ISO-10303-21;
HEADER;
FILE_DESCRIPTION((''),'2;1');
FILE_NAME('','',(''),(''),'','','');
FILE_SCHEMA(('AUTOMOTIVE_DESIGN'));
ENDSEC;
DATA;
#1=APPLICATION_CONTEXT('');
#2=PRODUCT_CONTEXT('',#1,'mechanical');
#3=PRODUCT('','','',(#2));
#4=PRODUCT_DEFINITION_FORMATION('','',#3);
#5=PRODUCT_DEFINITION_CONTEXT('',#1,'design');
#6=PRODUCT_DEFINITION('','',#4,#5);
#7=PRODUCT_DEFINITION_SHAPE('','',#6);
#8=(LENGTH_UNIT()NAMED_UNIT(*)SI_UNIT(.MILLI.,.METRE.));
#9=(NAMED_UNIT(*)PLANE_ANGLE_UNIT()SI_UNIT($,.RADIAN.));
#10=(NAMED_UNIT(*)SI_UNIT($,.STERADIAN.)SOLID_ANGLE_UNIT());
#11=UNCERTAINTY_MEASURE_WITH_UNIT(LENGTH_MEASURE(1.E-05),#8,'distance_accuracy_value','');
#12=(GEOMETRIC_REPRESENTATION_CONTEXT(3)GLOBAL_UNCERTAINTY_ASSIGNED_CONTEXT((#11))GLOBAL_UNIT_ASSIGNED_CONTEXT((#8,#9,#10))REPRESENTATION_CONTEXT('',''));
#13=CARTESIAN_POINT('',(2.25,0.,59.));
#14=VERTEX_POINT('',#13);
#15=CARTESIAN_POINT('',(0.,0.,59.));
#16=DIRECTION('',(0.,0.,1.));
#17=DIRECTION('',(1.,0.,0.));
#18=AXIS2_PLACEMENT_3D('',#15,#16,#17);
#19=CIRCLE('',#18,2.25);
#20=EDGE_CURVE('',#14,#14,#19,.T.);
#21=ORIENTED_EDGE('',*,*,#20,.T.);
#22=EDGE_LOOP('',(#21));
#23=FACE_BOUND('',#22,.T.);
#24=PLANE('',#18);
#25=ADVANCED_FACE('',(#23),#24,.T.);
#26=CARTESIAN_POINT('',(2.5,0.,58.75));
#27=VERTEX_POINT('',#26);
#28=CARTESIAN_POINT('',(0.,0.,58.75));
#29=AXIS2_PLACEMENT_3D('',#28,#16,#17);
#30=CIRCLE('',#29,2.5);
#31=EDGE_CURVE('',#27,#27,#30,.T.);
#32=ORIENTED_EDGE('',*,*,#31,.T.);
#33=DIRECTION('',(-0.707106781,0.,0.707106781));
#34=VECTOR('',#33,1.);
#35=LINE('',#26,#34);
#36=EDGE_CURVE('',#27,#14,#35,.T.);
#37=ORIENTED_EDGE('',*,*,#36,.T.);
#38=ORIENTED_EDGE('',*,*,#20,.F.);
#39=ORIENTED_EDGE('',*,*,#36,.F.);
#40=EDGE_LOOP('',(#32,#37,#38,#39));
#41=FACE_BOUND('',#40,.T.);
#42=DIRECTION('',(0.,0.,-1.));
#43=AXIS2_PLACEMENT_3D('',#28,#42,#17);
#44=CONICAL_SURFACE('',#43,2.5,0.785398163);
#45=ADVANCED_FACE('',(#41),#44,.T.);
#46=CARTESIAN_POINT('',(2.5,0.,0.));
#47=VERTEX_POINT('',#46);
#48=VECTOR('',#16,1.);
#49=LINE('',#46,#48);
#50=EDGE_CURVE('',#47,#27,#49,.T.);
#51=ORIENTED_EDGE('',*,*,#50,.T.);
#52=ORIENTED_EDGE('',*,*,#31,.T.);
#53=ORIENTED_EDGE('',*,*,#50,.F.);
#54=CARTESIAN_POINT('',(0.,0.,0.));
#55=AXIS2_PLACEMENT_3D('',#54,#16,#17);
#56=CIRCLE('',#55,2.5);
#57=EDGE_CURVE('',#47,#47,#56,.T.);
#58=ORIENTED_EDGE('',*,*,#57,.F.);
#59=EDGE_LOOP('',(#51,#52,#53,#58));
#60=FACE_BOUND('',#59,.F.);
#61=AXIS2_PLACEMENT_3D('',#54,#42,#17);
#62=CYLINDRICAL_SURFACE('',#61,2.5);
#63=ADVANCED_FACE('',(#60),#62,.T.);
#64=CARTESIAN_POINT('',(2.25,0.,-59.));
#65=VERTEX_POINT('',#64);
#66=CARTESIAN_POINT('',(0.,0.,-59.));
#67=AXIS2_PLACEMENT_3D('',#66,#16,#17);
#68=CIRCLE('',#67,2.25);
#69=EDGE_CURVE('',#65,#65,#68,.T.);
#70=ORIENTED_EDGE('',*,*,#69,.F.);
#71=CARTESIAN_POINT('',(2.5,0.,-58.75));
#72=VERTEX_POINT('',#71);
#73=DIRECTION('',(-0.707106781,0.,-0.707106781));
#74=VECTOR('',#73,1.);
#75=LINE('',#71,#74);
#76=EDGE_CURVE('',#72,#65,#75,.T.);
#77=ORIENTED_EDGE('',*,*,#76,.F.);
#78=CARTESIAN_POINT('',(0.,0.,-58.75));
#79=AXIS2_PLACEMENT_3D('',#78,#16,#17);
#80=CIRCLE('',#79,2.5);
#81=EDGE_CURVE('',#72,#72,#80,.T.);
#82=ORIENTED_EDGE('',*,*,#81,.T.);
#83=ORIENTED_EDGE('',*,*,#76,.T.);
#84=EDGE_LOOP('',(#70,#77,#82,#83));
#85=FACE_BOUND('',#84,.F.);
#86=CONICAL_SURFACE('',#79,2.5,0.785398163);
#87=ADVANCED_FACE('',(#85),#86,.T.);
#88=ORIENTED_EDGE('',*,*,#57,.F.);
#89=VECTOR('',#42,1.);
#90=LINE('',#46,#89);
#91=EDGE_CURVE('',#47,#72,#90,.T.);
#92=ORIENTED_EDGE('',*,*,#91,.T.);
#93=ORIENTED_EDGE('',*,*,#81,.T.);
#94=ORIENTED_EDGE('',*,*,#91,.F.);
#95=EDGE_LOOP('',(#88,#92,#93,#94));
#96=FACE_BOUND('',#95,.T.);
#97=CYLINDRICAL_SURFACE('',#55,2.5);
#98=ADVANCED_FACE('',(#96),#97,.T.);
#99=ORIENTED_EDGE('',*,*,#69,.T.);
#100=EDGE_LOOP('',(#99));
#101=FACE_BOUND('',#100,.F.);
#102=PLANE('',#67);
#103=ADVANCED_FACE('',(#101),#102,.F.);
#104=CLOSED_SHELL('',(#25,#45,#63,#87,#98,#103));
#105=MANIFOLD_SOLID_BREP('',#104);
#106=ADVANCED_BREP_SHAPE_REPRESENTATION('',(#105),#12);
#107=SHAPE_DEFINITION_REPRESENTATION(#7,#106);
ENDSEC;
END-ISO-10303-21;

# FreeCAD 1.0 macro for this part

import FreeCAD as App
import Part
import Sketcher


def edges_at(feature, points):
    """Names of the edges that pass closest to the given points."""
    edges = feature.Shape.Edges
    near = lambda p: min(range(len(edges)), key=lambda i: edges[i].distToShape(Part.Vertex(*p))[0])
    return sorted({f"Edge{near(p) + 1}" for p in points})

doc = App.newDocument("Part")
body = doc.addObject("PartDesign::Body", "Body")

# Sketch on XY plane
sketch1 = body.newObject("Sketcher::SketchObject", "Sketch")
sketch1.AttachmentSupport = (doc.getObject("XY_Plane"), [""])
sketch1.MapMode = "FlatFace"
sketch1.addGeometry(Part.Circle(App.Vector(0, 0, 0), App.Vector(0, 0, 1), 2.5), False)
sketch1.addConstraint([
    Sketcher.Constraint("Coincident", 0, 3, -1, 1),
    Sketcher.Constraint("Diameter", 0, 5.0),
])
pad1 = body.newObject("PartDesign::Pad", "Pad")
pad1.Profile = sketch1
pad1.Length = 118
pad1.Midplane = True
doc.recompute()

chamfer = body.newObject("PartDesign::Chamfer", "Chamfer")
chamfer.Base = (pad1, edges_at(pad1, [(-2.5, 0, 59), (-2.5, 0, -59)]))
chamfer.Size = 0.25

doc.recompute()
